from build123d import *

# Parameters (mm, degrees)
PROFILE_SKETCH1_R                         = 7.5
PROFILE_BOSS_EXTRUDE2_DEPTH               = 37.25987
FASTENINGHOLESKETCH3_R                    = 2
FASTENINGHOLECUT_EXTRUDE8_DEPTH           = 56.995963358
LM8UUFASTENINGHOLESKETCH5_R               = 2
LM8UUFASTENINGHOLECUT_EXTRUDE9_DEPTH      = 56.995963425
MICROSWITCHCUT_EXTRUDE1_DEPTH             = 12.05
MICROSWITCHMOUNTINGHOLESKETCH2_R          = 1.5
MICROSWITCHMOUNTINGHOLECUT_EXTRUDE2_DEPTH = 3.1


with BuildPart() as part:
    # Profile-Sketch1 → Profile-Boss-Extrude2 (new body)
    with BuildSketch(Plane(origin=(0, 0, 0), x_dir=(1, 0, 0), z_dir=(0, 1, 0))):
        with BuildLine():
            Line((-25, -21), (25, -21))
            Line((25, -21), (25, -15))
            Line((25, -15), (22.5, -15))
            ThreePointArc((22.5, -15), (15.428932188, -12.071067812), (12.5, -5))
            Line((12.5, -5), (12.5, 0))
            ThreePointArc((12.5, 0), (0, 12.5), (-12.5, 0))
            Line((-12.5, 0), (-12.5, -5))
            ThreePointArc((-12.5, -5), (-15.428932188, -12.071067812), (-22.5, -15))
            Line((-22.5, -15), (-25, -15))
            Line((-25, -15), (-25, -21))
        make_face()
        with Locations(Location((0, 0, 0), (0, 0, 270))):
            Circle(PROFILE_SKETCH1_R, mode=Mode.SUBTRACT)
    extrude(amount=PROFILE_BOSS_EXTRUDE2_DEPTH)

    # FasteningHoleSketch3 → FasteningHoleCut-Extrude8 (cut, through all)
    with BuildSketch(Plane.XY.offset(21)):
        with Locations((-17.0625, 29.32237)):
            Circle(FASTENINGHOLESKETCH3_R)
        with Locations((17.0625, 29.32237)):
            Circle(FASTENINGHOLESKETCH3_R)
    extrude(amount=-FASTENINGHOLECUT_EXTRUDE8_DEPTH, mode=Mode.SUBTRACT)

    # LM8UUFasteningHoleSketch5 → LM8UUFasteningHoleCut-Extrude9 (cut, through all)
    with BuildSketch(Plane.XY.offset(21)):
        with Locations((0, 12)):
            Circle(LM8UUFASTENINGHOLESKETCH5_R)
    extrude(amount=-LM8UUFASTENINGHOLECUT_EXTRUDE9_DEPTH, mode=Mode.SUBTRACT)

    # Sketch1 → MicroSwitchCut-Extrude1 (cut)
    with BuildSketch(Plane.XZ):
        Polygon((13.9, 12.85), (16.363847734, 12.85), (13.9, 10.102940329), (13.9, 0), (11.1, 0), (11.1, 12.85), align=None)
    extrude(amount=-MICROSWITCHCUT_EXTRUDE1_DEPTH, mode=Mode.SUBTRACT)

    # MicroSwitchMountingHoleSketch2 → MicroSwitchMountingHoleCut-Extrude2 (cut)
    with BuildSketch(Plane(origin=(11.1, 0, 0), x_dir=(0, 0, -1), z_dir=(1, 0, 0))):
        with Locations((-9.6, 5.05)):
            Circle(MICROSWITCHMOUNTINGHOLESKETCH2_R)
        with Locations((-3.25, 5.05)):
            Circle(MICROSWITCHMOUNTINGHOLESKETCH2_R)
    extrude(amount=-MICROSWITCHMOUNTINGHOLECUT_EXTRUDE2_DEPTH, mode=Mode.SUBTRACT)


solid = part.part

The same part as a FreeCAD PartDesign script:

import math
import FreeCAD as App
import Part
import Sketcher
from FreeCAD import Vector
Q = App.Units.Quantity


def add_polygon(sketch, points):
    """Adds a closed chain of lines whose ends are joined by coincident constraints."""
    first, n = sketch.GeometryCount, len(points)
    for a, b in zip(points, points[1:] + points[:1]):
        sketch.addGeometry(Part.LineSegment(App.Vector(*a, 0), App.Vector(*b, 0)), False)
    for i in range(n):
        sketch.addConstraint(Sketcher.Constraint("Coincident", first + i, 2, first + (i + 1) % n, 1))

doc = App.newDocument("Part")
body = doc.addObject("PartDesign::Body", "Body")

sketch1 = body.newObject("Sketcher::SketchObject", "Sketch")
sketch1.AttachmentSupport = (doc.getObject("XZ_Plane"), [""])
sketch1.MapMode = "FlatFace"
sketch1.addGeometry([
    Part.LineSegment(Vector(-25, 21, 0), Vector(25, 21, 0)),
    Part.LineSegment(Vector(25, 21, 0), Vector(25, 15, 0)),
    Part.LineSegment(Vector(25, 15, 0), Vector(22.5, 15, 0)),
    Part.ArcOfCircle(Part.Circle(Vector(22.5, 5, 0), Vector(0, 0, 1), 10), math.radians(90), math.radians(180)),
    Part.LineSegment(Vector(12.5, 5, 0), Vector(12.5, 0, 0)),
    Part.ArcOfCircle(Part.Circle(Vector(0, 0, 0), Vector(0, 0, 1), 12.5), math.radians(180), math.radians(360)),
    Part.LineSegment(Vector(-12.5, 0, 0), Vector(-12.5, 5, 0)),
    Part.ArcOfCircle(Part.Circle(Vector(-22.5, 5, 0), Vector(0, 0, 1), 10), math.radians(0), math.radians(90)),
    Part.LineSegment(Vector(-22.5, 15, 0), Vector(-25, 15, 0)),
    Part.LineSegment(Vector(-25, 15, 0), Vector(-25, 21, 0)),
    Part.Circle(Vector(0, 0, 0), Vector(0, 0, 1), 7.5),
], False)
sketch1.addConstraint([
    Sketcher.Constraint("Coincident", 0, 2, 1, 1),
    Sketcher.Constraint("Coincident", 1, 2, 2, 1),
    Sketcher.Constraint("Tangent", 2, 2, 3, 1),
    Sketcher.Constraint("Tangent", 3, 2, 4, 1),
    Sketcher.Constraint("Tangent", 4, 2, 5, 2),
    Sketcher.Constraint("Tangent", 5, 1, 6, 1),
    Sketcher.Constraint("Tangent", 6, 2, 7, 1),
    Sketcher.Constraint("Tangent", 7, 2, 8, 1),
    Sketcher.Constraint("Coincident", 8, 2, 9, 1),
    Sketcher.Constraint("Coincident", 9, 2, 0, 1),
    Sketcher.Constraint("Horizontal", 0),
    Sketcher.Constraint("Vertical", 1),
    Sketcher.Constraint("Horizontal", 2),
    Sketcher.Constraint("Vertical", 4),
    Sketcher.Constraint("Vertical", 6),
    Sketcher.Constraint("Horizontal", 8),
    Sketcher.Constraint("Vertical", 9),
    Sketcher.Constraint("Coincident", 5, 3, -1, 1),
    Sketcher.Constraint("Coincident", 10, 3, -1, 1),
    Sketcher.Constraint("Equal", 3, 7),
    Sketcher.Constraint("Symmetric", 1, 2, 8, 2, -2),
    Sketcher.Constraint("Diameter", 10, Q("15 mm")),
    Sketcher.Constraint("Radius", 3, Q("10 mm")),
    Sketcher.Constraint("Radius", 5, Q("12.5 mm")),
    Sketcher.Constraint("DistanceX", 0, 1, 0, 2, Q("50 mm")),
    Sketcher.Constraint("DistanceY", 1, 2, 1, 1, Q("6 mm")),
    Sketcher.Constraint("DistanceY", 4, 2, 4, 1, Q("5 mm")),
])
pad1 = body.newObject("PartDesign::Pad", "Pad")
pad1.Profile = sketch1
pad1.Length = 37.25987
pad1.Reversed = True

sketch2 = body.newObject("Sketcher::SketchObject", "Sketch001")
sketch2.AttachmentSupport = (doc.getObject("XY_Plane"), [""])
sketch2.MapMode = "FlatFace"
sketch2.AttachmentOffset = App.Placement(Vector(0, 0, 21), App.Rotation())
sketch2.addGeometry([
    Part.Circle(Vector(-17.1, 29.3, 0), Vector(0, 0, 1), 2),
    Part.Circle(Vector(17.1, 29.3, 0), Vector(0, 0, 1), 2),
], False)
sketch2.addConstraint([
    Sketcher.Constraint("Equal", 0, 1),
    Sketcher.Constraint("Symmetric", 0, 3, 1, 3, -2),
    Sketcher.Constraint("Diameter", 0, Q("4 mm")),
    Sketcher.Constraint("DistanceX", 0, 3, 1, 3, Q("34.125 mm")),
    Sketcher.Constraint("DistanceY", -1, 1, 0, 3, Q("29.32237 mm")),
])
pocket1 = body.newObject("PartDesign::Pocket", "Pocket")
pocket1.Profile = sketch2
pocket1.Type = "ThroughAll"

sketch3 = body.newObject("Sketcher::SketchObject", "Sketch002")
sketch3.AttachmentSupport = (doc.getObject("XY_Plane"), [""])
sketch3.MapMode = "FlatFace"
sketch3.AttachmentOffset = App.Placement(Vector(0, 0, 21), App.Rotation())
sketch3.addGeometry(Part.Circle(Vector(0, 12, 0), Vector(0, 0, 1), 2), False)
sketch3.addConstraint([
    Sketcher.Constraint("PointOnObject", 0, 3, -2),
    Sketcher.Constraint("Diameter", 0, Q("4 mm")),
    Sketcher.Constraint("DistanceY", -1, 1, 0, 3, Q("12 mm")),
])
pocket2 = body.newObject("PartDesign::Pocket", "Pocket001")
pocket2.Profile = sketch3
pocket2.Type = "ThroughAll"

sketch4 = body.newObject("Sketcher::SketchObject", "Sketch003")
sketch4.AttachmentSupport = (doc.getObject("XZ_Plane"), [""])
sketch4.MapMode = "FlatFace"
add_polygon(sketch4, [(16.4, 12.8), (11.1, 12.8), (11.1, 0), (13.9, 0), (13.9, 10.1)])
sketch4.addConstraint([
    Sketcher.Constraint("Horizontal", 0),
    Sketcher.Constraint("Vertical", 1),
    Sketcher.Constraint("Horizontal", 2),
    Sketcher.Constraint("Vertical", 3),
    Sketcher.Constraint("PointOnObject", 1, 2, -1),
    Sketcher.Constraint("DistanceX", 2, 1, 2, 2, Q("2.8 mm")),
    Sketcher.Constraint("DistanceY", 1, 2, 1, 1, Q("12.85 mm")),
    Sketcher.Constraint("DistanceX", -1, 1, 0, 2, Q("11.1 mm")),
    Sketcher.Constraint("DistanceY", 3, 1, 3, 2, Q("10.10294 mm")),
    Sketcher.Constraint("DistanceX", 0, 2, 0, 1, Q("5.263848 mm")),
])
pocket3 = body.newObject("PartDesign::Pocket", "Pocket002")
pocket3.Profile = sketch4
pocket3.Length = 12.05

sketch5 = body.newObject("Sketcher::SketchObject", "Sketch004")
sketch5.AttachmentSupport = (doc.getObject("YZ_Plane"), [""])
sketch5.MapMode = "FlatFace"
sketch5.AttachmentOffset = App.Placement(Vector(0, 0, 11.1), App.Rotation())
sketch5.addGeometry([
    Part.Circle(Vector(5, 9.6, 0), Vector(0, 0, 1), 1.5),
    Part.Circle(Vector(5, 3.2, 0), Vector(0, 0, 1), 1.5),
], False)
sketch5.addConstraint([
    Sketcher.Constraint("Equal", 0, 1),
    Sketcher.Constraint("Vertical", 0, 3, 1, 3),
    Sketcher.Constraint("Diameter", 0, Q("3 mm")),
    Sketcher.Constraint("DistanceY", -1, 1, 0, 3, Q("9.6 mm")),
    Sketcher.Constraint("DistanceX", -1, 1, 0, 3, Q("5.05 mm")),
    Sketcher.Constraint("DistanceY", -1, 1, 1, 3, Q("3.25 mm")),
])
pocket4 = body.newObject("PartDesign::Pocket", "Pocket003")
pocket4.Profile = sketch5
pocket4.Length = 3.1

doc.recompute()
